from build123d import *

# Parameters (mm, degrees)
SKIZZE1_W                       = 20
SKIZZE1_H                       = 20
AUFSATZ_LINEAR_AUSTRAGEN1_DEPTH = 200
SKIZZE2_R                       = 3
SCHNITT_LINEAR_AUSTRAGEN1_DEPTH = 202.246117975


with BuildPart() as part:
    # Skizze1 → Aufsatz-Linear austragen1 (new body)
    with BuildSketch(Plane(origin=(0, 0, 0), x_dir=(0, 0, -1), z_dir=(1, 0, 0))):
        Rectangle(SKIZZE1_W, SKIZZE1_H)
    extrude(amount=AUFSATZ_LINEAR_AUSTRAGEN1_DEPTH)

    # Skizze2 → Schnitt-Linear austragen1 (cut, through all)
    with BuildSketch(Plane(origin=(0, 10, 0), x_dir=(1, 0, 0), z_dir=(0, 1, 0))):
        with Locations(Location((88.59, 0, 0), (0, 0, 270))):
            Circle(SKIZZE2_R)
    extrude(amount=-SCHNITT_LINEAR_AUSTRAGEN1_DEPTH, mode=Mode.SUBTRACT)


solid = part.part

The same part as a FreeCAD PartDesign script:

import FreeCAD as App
import Part
import Sketcher

V = App.Vector

doc = App.newDocument("Part")
body = doc.addObject("PartDesign::Body", "Body")

sketch1 = body.newObject("Sketcher::SketchObject", "Sketch")
sketch1.AttachmentSupport = (doc.getObject("YZ_Plane"), [""])
sketch1.MapMode = "FlatFace"
sketch1.addGeometry([
    Part.LineSegment(V(10, 10, 0), V(-10, 10, 0)),
    Part.LineSegment(V(-10, 10, 0), V(-10, -10, 0)),
    Part.LineSegment(V(-10, -10, 0), V(10, -10, 0)),
    Part.LineSegment(V(10, -10, 0), V(10, 10, 0)),
], False)
sketch1.addConstraint([
    Sketcher.Constraint("Coincident", 0, 2, 1, 1),
    Sketcher.Constraint("Coincident", 1, 2, 2, 1),
    Sketcher.Constraint("Coincident", 2, 2, 3, 1),
    Sketcher.Constraint("Coincident", 3, 2, 0, 1),
    Sketcher.Constraint("Horizontal", 0),
    Sketcher.Constraint("Vertical", 1),
    Sketcher.Constraint("Horizontal", 2),
    Sketcher.Constraint("Vertical", 3),
    Sketcher.Constraint("Symmetric", 0, 2, 2, 2, -1, 1),
    Sketcher.Constraint("Equal", 2, 1),
    Sketcher.Constraint("DistanceX", 0, 2, 0, 1, 20.0),
])
pad1 = body.newObject("PartDesign::Pad", "Pad")
pad1.Profile = sketch1
pad1.Length = 200

sketch2 = body.newObject("Sketcher::SketchObject", "Sketch001")
sketch2.AttachmentSupport = (doc.getObject("XZ_Plane"), [""])
sketch2.MapMode = "FlatFace"
sketch2.AttachmentOffset = App.Placement(V(0, 0, -10), App.Rotation())
sketch2.addGeometry(Part.Circle(V(88.59, 0, 0), V(0, 0, 1), 3), False)
sketch2.addConstraint([
    Sketcher.Constraint("PointOnObject", 0, 3, -1),
    Sketcher.Constraint("Diameter", 0, 6.0),
    Sketcher.Constraint("DistanceX", -1, 1, 0, 3, 88.59),
])
pocket1 = body.newObject("PartDesign::Pocket", "Pocket")
pocket1.Profile = sketch2
pocket1.Type = "ThroughAll"
pocket1.Reversed = True

doc.recompute()
